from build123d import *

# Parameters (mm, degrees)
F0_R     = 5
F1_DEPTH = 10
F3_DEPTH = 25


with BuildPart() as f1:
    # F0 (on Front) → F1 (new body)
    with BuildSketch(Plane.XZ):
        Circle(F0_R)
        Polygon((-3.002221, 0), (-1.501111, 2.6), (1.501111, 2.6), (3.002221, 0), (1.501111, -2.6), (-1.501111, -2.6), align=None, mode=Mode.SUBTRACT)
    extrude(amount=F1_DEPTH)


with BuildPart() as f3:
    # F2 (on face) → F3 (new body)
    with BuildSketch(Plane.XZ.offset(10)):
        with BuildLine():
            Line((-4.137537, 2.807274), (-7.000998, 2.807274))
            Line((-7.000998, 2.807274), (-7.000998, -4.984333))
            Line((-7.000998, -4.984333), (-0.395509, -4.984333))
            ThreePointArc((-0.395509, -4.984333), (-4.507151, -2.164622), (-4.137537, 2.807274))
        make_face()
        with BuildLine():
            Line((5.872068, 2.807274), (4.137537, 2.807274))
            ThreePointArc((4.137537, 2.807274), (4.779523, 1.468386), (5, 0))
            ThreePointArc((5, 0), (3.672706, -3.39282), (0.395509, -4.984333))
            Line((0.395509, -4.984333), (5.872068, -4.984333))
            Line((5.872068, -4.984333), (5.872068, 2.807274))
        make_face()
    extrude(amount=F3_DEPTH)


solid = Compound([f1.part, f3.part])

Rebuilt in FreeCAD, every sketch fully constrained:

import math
import FreeCAD as App
import Part
import Sketcher
Q = App.Units.Quantity


def add_polygon(sketch, points):
    """Adds a closed chain of lines whose ends are joined by coincident constraints."""
    first, n = sketch.GeometryCount, len(points)
    for a, b in zip(points, points[1:] + points[:1]):
        sketch.addGeometry(Part.LineSegment(App.Vector(*a, 0), App.Vector(*b, 0)), False)
    for i in range(n):
        sketch.addConstraint(Sketcher.Constraint("Coincident", first + i, 2, first + (i + 1) % n, 1))

doc = App.newDocument("Part")
params = doc.addObject("Spreadsheet::Sheet", "Params")
for row, (alias, value) in enumerate([
    ("sketch1_diameter", "10 mm"),
    ("pad1_length", "10 mm"),
    ("sketch2_radius", "5 mm"),
    ("pad2_length", "25 mm"),
], start=1):
    params.set(f"A{row}", alias)
    params.set(f"B{row}", "=" + value)
    params.setAlias(f"B{row}", alias)

body = doc.addObject("PartDesign::Body", "Body")

# Sketch on XZ plane
sketch1 = body.newObject("Sketcher::SketchObject", "Sketch")
sketch1.AttachmentSupport = (doc.getObject("XZ_Plane"), [""])
sketch1.MapMode = "FlatFace"
sketch1.addGeometry(Part.Circle(App.Vector(0, 0, 0), App.Vector(0, 0, 1), 5), False)  # 0
add_polygon(sketch1, [(-1.5, -2.6), (-3, 0), (-1.5, 2.6), (1.5, 2.6), (3, 0), (1.5, -2.6)])  # lines 1-6
sketch1.addConstraint([
    Sketcher.Constraint("Horizontal", 3),
    Sketcher.Constraint("Horizontal", 6),
    Sketcher.Constraint("Coincident", 0, 3, -1, 1),
    Sketcher.Constraint("Symmetric", 1, 2, 4, 2, -1, 1),
    Sketcher.Constraint("Symmetric", 2, 2, 5, 2, -1, 1),
    Sketcher.Constraint("PointOnObject", 1, 2, -1),
    Sketcher.Constraint("Parallel", 1, 4),
    Sketcher.Constraint("Vertical", 3, 2, 5, 2),
    Sketcher.Constraint("Diameter", 0, 10.0),
    Sketcher.Constraint("Angle", 1, Q("119.999988 deg")),
    Sketcher.Constraint("DistanceY", -1, 1, 2, 2, 2.6),
    Sketcher.Constraint("DistanceX", 3, 1, 3, 2, 3.002222),
])
sketch1.setExpression("Constraints[14]", "Params.sketch1_diameter")
pad1 = body.newObject("PartDesign::Pad", "Pad")
pad1.Profile = sketch1
pad1.setExpression("Length", "Params.pad1_length")
body2 = doc.addObject("PartDesign::Body", "Body001")
body2.AllowCompound = True

# Sketch on XZ plane
sketch2 = body2.newObject("Sketcher::SketchObject", "Sketch001")
sketch2.AttachmentSupport = (doc.getObject("XZ_Plane001"), [""])
sketch2.MapMode = "FlatFace"
sketch2.AttachmentOffset = App.Placement(App.Vector(0, 0, 10), App.Rotation())
sketch2.addGeometry([
    Part.LineSegment(App.Vector(-4.1, 2.8, 0), App.Vector(-7, 2.8, 0)),  # 0
    Part.LineSegment(App.Vector(-7, 2.8, 0), App.Vector(-7, -5, 0)),  # 1
    Part.LineSegment(App.Vector(-7, -5, 0), App.Vector(-0.4, -5, 0)),  # 2
    Part.ArcOfCircle(Part.Circle(App.Vector(0, 0, 0), App.Vector(0, 0, 1), 5), math.radians(146), math.radians(265)),  # 3
    Part.LineSegment(App.Vector(5.9, 2.8, 0), App.Vector(4.1, 2.8, 0)),  # 4
    Part.ArcOfCircle(Part.Circle(App.Vector(0, 0, 0), App.Vector(0, 0, 1), 5), math.radians(0), math.radians(34)),  # 5
    Part.ArcOfCircle(Part.Circle(App.Vector(0, 0, 0), App.Vector(0, 0, 1), 5), math.radians(-85), math.radians(0)),  # 6
    Part.LineSegment(App.Vector(0.4, -5, 0), App.Vector(5.9, -5, 0)),  # 7
    Part.LineSegment(App.Vector(5.9, -5, 0), App.Vector(5.9, 2.8, 0)),  # 8
], False)
sketch2.addConstraint([
    Sketcher.Constraint("Coincident", 0, 2, 1, 1),
    Sketcher.Constraint("Coincident", 1, 2, 2, 1),
    Sketcher.Constraint("Coincident", 2, 2, 3, 2),
    Sketcher.Constraint("Coincident", 3, 1, 0, 1),
    Sketcher.Constraint("Coincident", 4, 2, 5, 2),
    Sketcher.Constraint("Tangent", 5, 1, 6, 2),
    Sketcher.Constraint("Coincident", 6, 1, 7, 1),
    Sketcher.Constraint("Coincident", 7, 2, 8, 1),
    Sketcher.Constraint("Coincident", 8, 2, 4, 1),
    Sketcher.Constraint("Horizontal", 0),
    Sketcher.Constraint("Vertical", 1),
    Sketcher.Constraint("Horizontal", 2),
    Sketcher.Constraint("Horizontal", 4),
    Sketcher.Constraint("Horizontal", 7),
    Sketcher.Constraint("Vertical", 8),
    Sketcher.Constraint("Coincident", 3, 3, -1, 1),
    Sketcher.Constraint("Coincident", 5, 3, -1, 1),
    Sketcher.Constraint("Equal", 3, 6),
    Sketcher.Constraint("Symmetric", 3, 1, 4, 2, -2),
    Sketcher.Constraint("PointOnObject", 5, 1, -1),
    Sketcher.Constraint("Horizontal", 2, 2, 6, 1),
    Sketcher.Constraint("Radius", 3, 5.0),
    Sketcher.Constraint("DistanceX", 0, 2, 3, 3, 7.000999),
    Sketcher.Constraint("DistanceX", 0, 2, 0, 1, 2.863461),
    Sketcher.Constraint("DistanceX", 2, 1, 2, 2, 6.605489),
    Sketcher.Constraint("DistanceX", 4, 2, 4, 1, 1.734531),
])
sketch2.setExpression("Constraints[21]", "Params.sketch2_radius")
pad2 = body2.newObject("PartDesign::Pad", "Pad001")
pad2.Profile = sketch2
pad2.setExpression("Length", "Params.pad2_length")

doc.recompute()
